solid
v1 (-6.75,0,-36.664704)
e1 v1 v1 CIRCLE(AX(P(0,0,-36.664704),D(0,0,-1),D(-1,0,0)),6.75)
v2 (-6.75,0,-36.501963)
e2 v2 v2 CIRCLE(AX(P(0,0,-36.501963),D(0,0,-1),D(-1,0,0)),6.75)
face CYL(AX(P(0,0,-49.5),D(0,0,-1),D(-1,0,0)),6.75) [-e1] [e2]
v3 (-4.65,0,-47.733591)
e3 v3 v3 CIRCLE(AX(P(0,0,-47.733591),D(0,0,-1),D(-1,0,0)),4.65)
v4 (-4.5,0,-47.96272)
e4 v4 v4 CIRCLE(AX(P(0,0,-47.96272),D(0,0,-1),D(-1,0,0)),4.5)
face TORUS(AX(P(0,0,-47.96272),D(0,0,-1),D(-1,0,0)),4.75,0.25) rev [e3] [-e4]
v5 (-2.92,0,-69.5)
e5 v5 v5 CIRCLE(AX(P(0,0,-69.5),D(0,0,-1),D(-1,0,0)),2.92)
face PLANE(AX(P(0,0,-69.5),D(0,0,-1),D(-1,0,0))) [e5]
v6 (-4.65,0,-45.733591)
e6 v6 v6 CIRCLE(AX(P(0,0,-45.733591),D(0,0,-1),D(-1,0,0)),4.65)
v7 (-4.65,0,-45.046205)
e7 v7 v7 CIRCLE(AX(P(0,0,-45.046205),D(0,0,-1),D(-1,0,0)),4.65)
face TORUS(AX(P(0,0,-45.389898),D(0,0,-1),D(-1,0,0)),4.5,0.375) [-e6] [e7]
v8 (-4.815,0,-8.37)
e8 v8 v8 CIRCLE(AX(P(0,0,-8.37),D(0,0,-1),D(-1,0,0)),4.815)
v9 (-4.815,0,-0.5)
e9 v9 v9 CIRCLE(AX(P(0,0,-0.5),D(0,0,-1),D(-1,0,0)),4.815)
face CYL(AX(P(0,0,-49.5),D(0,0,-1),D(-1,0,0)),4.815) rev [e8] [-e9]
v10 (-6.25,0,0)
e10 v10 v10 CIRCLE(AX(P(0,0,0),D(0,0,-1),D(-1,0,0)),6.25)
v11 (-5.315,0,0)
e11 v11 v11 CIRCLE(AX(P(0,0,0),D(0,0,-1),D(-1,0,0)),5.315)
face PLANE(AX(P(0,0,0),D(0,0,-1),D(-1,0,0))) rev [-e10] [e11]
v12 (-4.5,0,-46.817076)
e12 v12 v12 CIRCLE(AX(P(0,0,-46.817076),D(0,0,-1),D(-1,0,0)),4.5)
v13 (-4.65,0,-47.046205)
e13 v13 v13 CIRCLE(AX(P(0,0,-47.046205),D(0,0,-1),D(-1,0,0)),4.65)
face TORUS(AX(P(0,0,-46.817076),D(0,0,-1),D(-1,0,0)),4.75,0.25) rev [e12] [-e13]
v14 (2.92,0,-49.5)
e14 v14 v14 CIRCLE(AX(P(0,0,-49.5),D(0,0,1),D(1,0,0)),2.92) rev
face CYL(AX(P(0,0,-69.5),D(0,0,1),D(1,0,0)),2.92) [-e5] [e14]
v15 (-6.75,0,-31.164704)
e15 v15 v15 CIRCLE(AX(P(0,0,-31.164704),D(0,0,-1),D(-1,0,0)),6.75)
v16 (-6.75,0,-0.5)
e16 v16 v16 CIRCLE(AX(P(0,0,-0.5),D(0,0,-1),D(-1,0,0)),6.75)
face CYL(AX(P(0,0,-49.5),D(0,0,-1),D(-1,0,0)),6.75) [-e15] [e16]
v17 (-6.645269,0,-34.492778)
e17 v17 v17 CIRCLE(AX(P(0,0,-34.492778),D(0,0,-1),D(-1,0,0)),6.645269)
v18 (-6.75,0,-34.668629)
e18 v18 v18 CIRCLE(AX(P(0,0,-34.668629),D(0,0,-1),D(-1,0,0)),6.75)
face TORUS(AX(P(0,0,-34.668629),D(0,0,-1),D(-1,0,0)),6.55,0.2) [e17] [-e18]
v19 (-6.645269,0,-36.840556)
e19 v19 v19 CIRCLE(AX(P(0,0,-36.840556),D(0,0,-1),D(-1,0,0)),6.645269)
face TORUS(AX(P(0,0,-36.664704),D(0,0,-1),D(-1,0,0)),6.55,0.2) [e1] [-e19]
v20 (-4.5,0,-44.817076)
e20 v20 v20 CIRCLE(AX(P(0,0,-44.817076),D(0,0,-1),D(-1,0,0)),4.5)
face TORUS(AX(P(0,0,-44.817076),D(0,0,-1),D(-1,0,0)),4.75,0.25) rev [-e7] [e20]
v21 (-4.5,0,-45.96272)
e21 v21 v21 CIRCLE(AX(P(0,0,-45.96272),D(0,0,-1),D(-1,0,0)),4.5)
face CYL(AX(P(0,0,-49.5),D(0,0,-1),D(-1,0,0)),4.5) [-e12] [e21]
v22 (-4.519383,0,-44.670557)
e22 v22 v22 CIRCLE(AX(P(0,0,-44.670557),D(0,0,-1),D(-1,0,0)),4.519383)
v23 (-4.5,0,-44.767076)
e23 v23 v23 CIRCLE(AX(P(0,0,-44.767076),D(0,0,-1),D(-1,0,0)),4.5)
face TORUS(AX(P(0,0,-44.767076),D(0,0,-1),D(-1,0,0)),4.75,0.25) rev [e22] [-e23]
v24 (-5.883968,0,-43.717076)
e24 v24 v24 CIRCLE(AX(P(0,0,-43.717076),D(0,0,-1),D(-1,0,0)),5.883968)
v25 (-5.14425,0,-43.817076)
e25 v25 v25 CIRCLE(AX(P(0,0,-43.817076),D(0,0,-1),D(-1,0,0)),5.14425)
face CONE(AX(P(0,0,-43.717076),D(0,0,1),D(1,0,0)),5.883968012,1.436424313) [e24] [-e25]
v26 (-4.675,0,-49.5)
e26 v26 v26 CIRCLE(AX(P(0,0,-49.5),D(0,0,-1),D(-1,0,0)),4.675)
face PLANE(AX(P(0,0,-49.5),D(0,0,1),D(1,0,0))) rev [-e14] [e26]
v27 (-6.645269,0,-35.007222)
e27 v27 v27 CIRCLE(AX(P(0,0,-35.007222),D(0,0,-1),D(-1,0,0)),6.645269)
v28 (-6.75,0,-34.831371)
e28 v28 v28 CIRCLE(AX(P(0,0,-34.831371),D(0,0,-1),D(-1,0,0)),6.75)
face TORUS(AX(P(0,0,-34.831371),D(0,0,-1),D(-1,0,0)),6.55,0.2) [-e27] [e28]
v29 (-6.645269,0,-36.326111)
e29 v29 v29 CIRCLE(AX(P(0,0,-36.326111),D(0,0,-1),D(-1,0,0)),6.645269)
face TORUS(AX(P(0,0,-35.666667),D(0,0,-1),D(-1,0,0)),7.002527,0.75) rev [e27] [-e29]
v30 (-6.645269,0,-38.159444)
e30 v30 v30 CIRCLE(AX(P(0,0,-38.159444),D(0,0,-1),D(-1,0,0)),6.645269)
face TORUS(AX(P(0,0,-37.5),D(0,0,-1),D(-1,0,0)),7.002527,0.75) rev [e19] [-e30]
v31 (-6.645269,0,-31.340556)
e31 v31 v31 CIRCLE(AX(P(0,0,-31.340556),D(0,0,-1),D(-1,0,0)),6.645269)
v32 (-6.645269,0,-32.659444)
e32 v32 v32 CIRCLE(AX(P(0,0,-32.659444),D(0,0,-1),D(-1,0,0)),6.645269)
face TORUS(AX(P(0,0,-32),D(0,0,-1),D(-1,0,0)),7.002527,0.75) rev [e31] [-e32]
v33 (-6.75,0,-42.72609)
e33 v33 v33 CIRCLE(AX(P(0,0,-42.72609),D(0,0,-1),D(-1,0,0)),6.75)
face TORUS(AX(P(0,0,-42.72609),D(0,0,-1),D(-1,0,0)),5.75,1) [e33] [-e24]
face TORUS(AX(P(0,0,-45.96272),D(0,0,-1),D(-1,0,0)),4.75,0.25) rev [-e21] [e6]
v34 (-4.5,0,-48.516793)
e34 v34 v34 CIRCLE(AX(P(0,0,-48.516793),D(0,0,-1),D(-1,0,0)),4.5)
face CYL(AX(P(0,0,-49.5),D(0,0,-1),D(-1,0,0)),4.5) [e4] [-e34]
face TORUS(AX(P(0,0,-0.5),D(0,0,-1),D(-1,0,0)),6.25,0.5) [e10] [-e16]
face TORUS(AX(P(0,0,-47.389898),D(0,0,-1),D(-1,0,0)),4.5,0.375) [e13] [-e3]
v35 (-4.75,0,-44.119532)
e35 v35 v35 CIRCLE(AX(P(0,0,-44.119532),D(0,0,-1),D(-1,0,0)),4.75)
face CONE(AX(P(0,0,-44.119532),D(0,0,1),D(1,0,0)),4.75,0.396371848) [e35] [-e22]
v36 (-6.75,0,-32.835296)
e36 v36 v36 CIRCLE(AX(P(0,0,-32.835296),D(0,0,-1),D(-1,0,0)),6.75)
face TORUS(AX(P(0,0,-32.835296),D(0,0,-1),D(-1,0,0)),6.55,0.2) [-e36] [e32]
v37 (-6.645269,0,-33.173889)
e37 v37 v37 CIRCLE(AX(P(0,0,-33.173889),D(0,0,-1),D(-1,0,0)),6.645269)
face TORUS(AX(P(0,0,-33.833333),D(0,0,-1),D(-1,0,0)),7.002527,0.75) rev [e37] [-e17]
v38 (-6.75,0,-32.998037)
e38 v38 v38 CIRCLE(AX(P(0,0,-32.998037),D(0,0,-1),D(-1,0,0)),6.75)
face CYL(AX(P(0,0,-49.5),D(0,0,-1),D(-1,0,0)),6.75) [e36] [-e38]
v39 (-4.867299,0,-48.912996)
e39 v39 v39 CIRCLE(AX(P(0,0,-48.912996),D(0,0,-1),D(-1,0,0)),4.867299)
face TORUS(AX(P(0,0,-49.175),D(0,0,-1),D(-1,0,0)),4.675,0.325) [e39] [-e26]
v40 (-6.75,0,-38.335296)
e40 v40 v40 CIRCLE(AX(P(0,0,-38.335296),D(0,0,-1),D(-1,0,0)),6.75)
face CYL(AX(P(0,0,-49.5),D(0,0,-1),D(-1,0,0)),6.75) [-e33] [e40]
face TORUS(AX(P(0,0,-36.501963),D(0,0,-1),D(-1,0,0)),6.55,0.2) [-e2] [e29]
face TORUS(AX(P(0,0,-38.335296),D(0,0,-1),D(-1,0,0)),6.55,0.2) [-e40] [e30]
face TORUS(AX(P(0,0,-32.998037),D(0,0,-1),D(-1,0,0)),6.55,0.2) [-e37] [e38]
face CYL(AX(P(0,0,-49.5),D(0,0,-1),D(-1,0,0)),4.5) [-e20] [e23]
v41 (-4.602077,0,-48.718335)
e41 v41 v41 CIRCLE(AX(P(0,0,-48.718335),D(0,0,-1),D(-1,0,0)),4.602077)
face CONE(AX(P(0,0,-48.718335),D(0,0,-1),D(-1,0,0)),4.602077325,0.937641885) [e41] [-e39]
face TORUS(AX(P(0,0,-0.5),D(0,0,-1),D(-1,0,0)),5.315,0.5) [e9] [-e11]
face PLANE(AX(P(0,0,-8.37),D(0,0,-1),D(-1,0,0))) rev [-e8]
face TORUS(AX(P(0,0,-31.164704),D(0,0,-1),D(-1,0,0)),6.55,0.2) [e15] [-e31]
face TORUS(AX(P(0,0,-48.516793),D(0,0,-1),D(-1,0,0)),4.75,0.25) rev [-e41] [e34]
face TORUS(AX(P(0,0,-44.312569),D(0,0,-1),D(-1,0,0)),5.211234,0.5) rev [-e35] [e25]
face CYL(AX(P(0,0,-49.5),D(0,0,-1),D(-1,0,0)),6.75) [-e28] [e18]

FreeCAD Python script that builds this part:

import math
import FreeCAD as App
import Part
import Sketcher
from FreeCAD import Vector

doc = App.newDocument("Part")
body = doc.addObject("PartDesign::Body", "Body")

sketch1 = body.newObject("Sketcher::SketchObject", "Sketch")
sketch1.AttachmentSupport = (doc.getObject("YZ_Plane"), [""])
sketch1.MapMode = "FlatFace"
sketch1.addGeometry(Part.LineSegment(Vector(6.25, 0, 0), Vector(5.32, 0, 0)), False)
sketch1.addGeometry(Part.ArcOfCircle(Part.Circle(Vector(5.31, -0.5, 0), Vector(0, 0, 1), 0.5), math.radians(90), math.radians(180)), False)
sketch1.addGeometry(Part.LineSegment(Vector(4.82, -0.5, 0), Vector(4.82, -8.37, 0)), False)
sketch1.addGeometry(Part.LineSegment(Vector(4.82, -8.37, 0), Vector(0, -8.37, 0)), False)
sketch1.addGeometry(Part.LineSegment(Vector(0, -8.37, 0), Vector(0, -49.5, 0)), False)
sketch1.addGeometry(Part.LineSegment(Vector(0, -49.5, 0), Vector(4.67, -49.5, 0)), False)
sketch1.addGeometry(Part.ArcOfCircle(Part.Circle(Vector(4.67, -49.17, 0), Vector(0, 0, 1), 0.33), math.radians(-90), math.radians(54)), False)
sketch1.addGeometry(Part.LineSegment(Vector(4.87, -48.91, 0), Vector(4.6, -48.72, 0)), False)
sketch1.addGeometry(Part.ArcOfCircle(Part.Circle(Vector(4.75, -48.52, 0), Vector(0, 0, 1), 0.25), math.radians(180), math.radians(234)), False)
sketch1.addGeometry(Part.LineSegment(Vector(4.5, -48.52, 0), Vector(4.5, -47.96, 0)), False)
sketch1.addGeometry(Part.ArcOfCircle(Part.Circle(Vector(4.75, -47.96, 0), Vector(0, 0, 1), 0.25), math.radians(114), math.radians(180)), False)
sketch1.addGeometry(Part.ArcOfCircle(Part.Circle(Vector(4.5, -47.39, 0), Vector(0, 0, 1), 0.38), math.radians(-66), math.radians(66)), False)
sketch1.addGeometry(Part.ArcOfCircle(Part.Circle(Vector(4.75, -46.82, 0), Vector(0, 0, 1), 0.25), math.radians(180), math.radians(246)), False)
sketch1.addGeometry(Part.LineSegment(Vector(4.5, -46.82, 0), Vector(4.5, -45.96, 0)), False)
sketch1.addGeometry(Part.ArcOfCircle(Part.Circle(Vector(4.75, -45.96, 0), Vector(0, 0, 1), 0.25), math.radians(114), math.radians(180)), False)
sketch1.addGeometry(Part.ArcOfCircle(Part.Circle(Vector(4.5, -45.39, 0), Vector(0, 0, 1), 0.38), math.radians(-66), math.radians(66)), False)
sketch1.addGeometry(Part.ArcOfCircle(Part.Circle(Vector(4.75, -44.82, 0), Vector(0, 0, 1), 0.25), math.radians(180), math.radians(246)), False)
sketch1.addGeometry(Part.LineSegment(Vector(4.5, -44.82, 0), Vector(4.5, -44.77, 0)), False)
sketch1.addGeometry(Part.ArcOfCircle(Part.Circle(Vector(4.75, -44.77, 0), Vector(0, 0, 1), 0.25), math.radians(157), math.radians(180)), False)
sketch1.addGeometry(Part.LineSegment(Vector(4.52, -44.67, 0), Vector(4.75, -44.12, 0)), False)
sketch1.addGeometry(Part.ArcOfCircle(Part.Circle(Vector(5.21, -44.31, 0), Vector(0, 0, 1), 0.5), math.radians(98), math.radians(157)), False)
sketch1.addGeometry(Part.LineSegment(Vector(5.14, -43.82, 0), Vector(5.88, -43.72, 0)), False)
sketch1.addGeometry(Part.ArcOfCircle(Part.Circle(Vector(5.75, -42.73, 0), Vector(0, 0, 1), 1), math.radians(-82), math.radians(0)), False)
sketch1.addGeometry(Part.LineSegment(Vector(6.75, -42.73, 0), Vector(6.75, -38.34, 0)), False)
sketch1.addGeometry(Part.ArcOfCircle(Part.Circle(Vector(6.55, -38.34, 0), Vector(0, 0, 1), 0.2), math.radians(0), math.radians(62)), False)
sketch1.addGeometry(Part.ArcOfCircle(Part.Circle(Vector(7, -37.5, 0), Vector(0, 0, 1), 0.75), math.radians(118), math.radians(242)), False)
sketch1.addGeometry(Part.ArcOfCircle(Part.Circle(Vector(6.55, -36.66, 0), Vector(0, 0, 1), 0.2), math.radians(-62), math.radians(0)), False)
sketch1.addGeometry(Part.LineSegment(Vector(6.75, -36.66, 0), Vector(6.75, -36.5, 0)), False)
sketch1.addGeometry(Part.ArcOfCircle(Part.Circle(Vector(6.55, -36.5, 0), Vector(0, 0, 1), 0.2), math.radians(0), math.radians(62)), False)
sketch1.addGeometry(Part.ArcOfCircle(Part.Circle(Vector(7, -35.67, 0), Vector(0, 0, 1), 0.75), math.radians(118), math.radians(242)), False)
sketch1.addGeometry(Part.ArcOfCircle(Part.Circle(Vector(6.55, -34.83, 0), Vector(0, 0, 1), 0.2), math.radians(-62), math.radians(0)), False)
sketch1.addGeometry(Part.LineSegment(Vector(6.75, -34.83, 0), Vector(6.75, -34.67, 0)), False)
sketch1.addGeometry(Part.ArcOfCircle(Part.Circle(Vector(6.55, -34.67, 0), Vector(0, 0, 1), 0.2), math.radians(0), math.radians(62)), False)
sketch1.addGeometry(Part.ArcOfCircle(Part.Circle(Vector(7, -33.83, 0), Vector(0, 0, 1), 0.75), math.radians(118), math.radians(242)), False)
sketch1.addGeometry(Part.ArcOfCircle(Part.Circle(Vector(6.55, -33, 0), Vector(0, 0, 1), 0.2), math.radians(-62), math.radians(0)), False)
sketch1.addGeometry(Part.LineSegment(Vector(6.75, -33, 0), Vector(6.75, -32.84, 0)), False)
sketch1.addGeometry(Part.ArcOfCircle(Part.Circle(Vector(6.55, -32.84, 0), Vector(0, 0, 1), 0.2), math.radians(0), math.radians(62)), False)
sketch1.addGeometry(Part.ArcOfCircle(Part.Circle(Vector(7, -32, 0), Vector(0, 0, 1), 0.75), math.radians(118), math.radians(242)), False)
sketch1.addGeometry(Part.ArcOfCircle(Part.Circle(Vector(6.55, -31.16, 0), Vector(0, 0, 1), 0.2), math.radians(-62), math.radians(0)), False)
sketch1.addGeometry(Part.LineSegment(Vector(6.75, -31.16, 0), Vector(6.75, -0.5, 0)), False)
sketch1.addGeometry(Part.ArcOfCircle(Part.Circle(Vector(6.25, -0.5, 0), Vector(0, 0, 1), 0.5), math.radians(0), math.radians(90)), False)
sketch1.addConstraint(Sketcher.Constraint("Tangent", 0, 2, 1, 1))
sketch1.addConstraint(Sketcher.Constraint("Tangent", 1, 2, 2, 1))
sketch1.addConstraint(Sketcher.Constraint("Coincident", 2, 2, 3, 1))
sketch1.addConstraint(Sketcher.Constraint("Coincident", 3, 2, 4, 1))
sketch1.addConstraint(Sketcher.Constraint("Coincident", 4, 2, 5, 1))
sketch1.addConstraint(Sketcher.Constraint("Tangent", 5, 2, 6, 1))
sketch1.addConstraint(Sketcher.Constraint("Tangent", 6, 2, 7, 1))
sketch1.addConstraint(Sketcher.Constraint("Tangent", 7, 2, 8, 2))
sketch1.addConstraint(Sketcher.Constraint("Tangent", 8, 1, 9, 1))
sketch1.addConstraint(Sketcher.Constraint("Tangent", 9, 2, 10, 2))
sketch1.addConstraint(Sketcher.Constraint("Tangent", 10, 1, 11, 1))
sketch1.addConstraint(Sketcher.Constraint("Tangent", 11, 2, 12, 2))
sketch1.addConstraint(Sketcher.Constraint("Tangent", 12, 1, 13, 1))
sketch1.addConstraint(Sketcher.Constraint("Tangent", 13, 2, 14, 2))
sketch1.addConstraint(Sketcher.Constraint("Tangent", 14, 1, 15, 1))
sketch1.addConstraint(Sketcher.Constraint("Tangent", 15, 2, 16, 2))
sketch1.addConstraint(Sketcher.Constraint("Tangent", 16, 1, 17, 1))
sketch1.addConstraint(Sketcher.Constraint("Tangent", 17, 2, 18, 2))
sketch1.addConstraint(Sketcher.Constraint("Tangent", 18, 1, 19, 1))
sketch1.addConstraint(Sketcher.Constraint("Tangent", 19, 2, 20, 2))
sketch1.addConstraint(Sketcher.Constraint("Tangent", 20, 1, 21, 1))
sketch1.addConstraint(Sketcher.Constraint("Tangent", 21, 2, 22, 1))
sketch1.addConstraint(Sketcher.Constraint("Tangent", 22, 2, 23, 1))
sketch1.addConstraint(Sketcher.Constraint("Tangent", 23, 2, 24, 1))
sketch1.addConstraint(Sketcher.Constraint("Tangent", 24, 2, 25, 2))
sketch1.addConstraint(Sketcher.Constraint("Tangent", 25, 1, 26, 1))
sketch1.addConstraint(Sketcher.Constraint("Tangent", 26, 2, 27, 1))
sketch1.addConstraint(Sketcher.Constraint("Tangent", 27, 2, 28, 1))
sketch1.addConstraint(Sketcher.Constraint("Tangent", 28, 2, 29, 2))
sketch1.addConstraint(Sketcher.Constraint("Tangent", 29, 1, 30, 1))
sketch1.addConstraint(Sketcher.Constraint("Tangent", 30, 2, 31, 1))
sketch1.addConstraint(Sketcher.Constraint("Tangent", 31, 2, 32, 1))
sketch1.addConstraint(Sketcher.Constraint("Tangent", 32, 2, 33, 2))
sketch1.addConstraint(Sketcher.Constraint("Tangent", 33, 1, 34, 1))
sketch1.addConstraint(Sketcher.Constraint("Tangent", 34, 2, 35, 1))
sketch1.addConstraint(Sketcher.Constraint("Tangent", 35, 2, 36, 1))
sketch1.addConstraint(Sketcher.Constraint("Tangent", 36, 2, 37, 2))
sketch1.addConstraint(Sketcher.Constraint("Tangent", 37, 1, 38, 1))
sketch1.addConstraint(Sketcher.Constraint("Tangent", 38, 2, 39, 1))
sketch1.addConstraint(Sketcher.Constraint("Tangent", 39, 2, 40, 1))
sketch1.addConstraint(Sketcher.Constraint("Tangent", 40, 2, 0, 1))
sketch1.addConstraint(Sketcher.Constraint("Horizontal", 0))
sketch1.addConstraint(Sketcher.Constraint("Vertical", 2))
sketch1.addConstraint(Sketcher.Constraint("Horizontal", 3))
sketch1.addConstraint(Sketcher.Constraint("Vertical", 4))
sketch1.addConstraint(Sketcher.Constraint("Horizontal", 5))
sketch1.addConstraint(Sketcher.Constraint("Vertical", 9))
sketch1.addConstraint(Sketcher.Constraint("Vertical", 13))
sketch1.addConstraint(Sketcher.Constraint("Vertical", 17))
sketch1.addConstraint(Sketcher.Constraint("Vertical", 23))
sketch1.addConstraint(Sketcher.Constraint("Vertical", 27))
sketch1.addConstraint(Sketcher.Constraint("Vertical", 31))
sketch1.addConstraint(Sketcher.Constraint("Vertical", 35))
sketch1.addConstraint(Sketcher.Constraint("Vertical", 39))
sketch1.addConstraint(Sketcher.Constraint("Equal", 8, 10))
sketch1.addConstraint(Sketcher.Constraint("Equal", 10, 12))
sketch1.addConstraint(Sketcher.Constraint("Equal", 12, 14))
sketch1.addConstraint(Sketcher.Constraint("Equal", 11, 15))
sketch1.addConstraint(Sketcher.Constraint("Equal", 14, 16))
sketch1.addConstraint(Sketcher.Constraint("Equal", 16, 18))
sketch1.addConstraint(Sketcher.Constraint("Equal", 1, 20))
sketch1.addConstraint(Sketcher.Constraint("Equal", 24, 26))
sketch1.addConstraint(Sketcher.Constraint("Equal", 26, 28))
sketch1.addConstraint(Sketcher.Constraint("Equal", 25, 29))
sketch1.addConstraint(Sketcher.Constraint("Equal", 28, 30))
sketch1.addConstraint(Sketcher.Constraint("Equal", 30, 32))
sketch1.addConstraint(Sketcher.Constraint("Equal", 29, 33))
sketch1.addConstraint(Sketcher.Constraint("Equal", 32, 34))
sketch1.addConstraint(Sketcher.Constraint("Equal", 34, 36))
sketch1.addConstraint(Sketcher.Constraint("Equal", 33, 37))
sketch1.addConstraint(Sketcher.Constraint("Equal", 36, 38))
sketch1.addConstraint(Sketcher.Constraint("Equal", 20, 40))
sketch1.addConstraint(Sketcher.Constraint("PointOnObject", 0, 2, -1))
sketch1.addConstraint(Sketcher.Constraint("PointOnObject", 3, 2, -2))
sketch1.addConstraint(Sketcher.Constraint("Vertical", 10, 3, 12, 3))
sketch1.addConstraint(Sketcher.Constraint("Vertical", 11, 3, 15, 3))
sketch1.addConstraint(Sketcher.Constraint("Vertical", 14, 3, 16, 3))
sketch1.addConstraint(Sketcher.Constraint("Vertical", 24, 3, 26, 3))
sketch1.addConstraint(Sketcher.Constraint("Vertical", 25, 3, 29, 3))
sketch1.addConstraint(Sketcher.Constraint("Vertical", 28, 3, 30, 3))
sketch1.addConstraint(Sketcher.Constraint("Vertical", 29, 3, 33, 3))
sketch1.addConstraint(Sketcher.Constraint("Vertical", 32, 3, 34, 3))
sketch1.addConstraint(Sketcher.Constraint("Vertical", 33, 3, 37, 3))
sketch1.addConstraint(Sketcher.Constraint("Vertical", 36, 3, 38, 3))
sketch1.addConstraint(Sketcher.Constraint("Vertical", 15, 3, 8, 1))
sketch1.addConstraint(Sketcher.Constraint("Vertical", 18, 3, 19, 2))
sketch1.addConstraint(Sketcher.Constraint("Equal", 27, 31))
sketch1.addConstraint(Sketcher.Constraint("Equal", 31, 35))
sketch1.addConstraint(Sketcher.Constraint("Radius", 22, 1.0))
sketch1.addConstraint(Sketcher.Constraint("Radius", 1, 0.5))
sketch1.addConstraint(Sketcher.Constraint("Radius", 24, 0.2))
sketch1.addConstraint(Sketcher.Constraint("Radius", 8, 0.25))
sketch1.addConstraint(Sketcher.Constraint("Radius", 25, 0.75))
sketch1.addConstraint(Sketcher.Constraint("DistanceY", 37, 3, -1, 1, 32.0))
sketch1.addConstraint(Sketcher.Constraint("Radius", 6, 0.325))
sketch1.addConstraint(Sketcher.Constraint("Radius", 11, 0.375))
sketch1.addConstraint(Sketcher.Constraint("DistanceY", 2, 2, 2, 1, 7.87))
sketch1.addConstraint(Sketcher.Constraint("DistanceY", 4, 2, 4, 1, 41.13))
sketch1.addConstraint(Sketcher.Constraint("DistanceY", 17, 1, 17, 2, 0.05))
sketch1.addConstraint(Sketcher.Constraint("DistanceX", -1, 1, 11, 3, 4.5))
sketch1.addConstraint(Sketcher.Constraint("DistanceY", 25, 3, -1, 1, 37.5))
sketch1.addConstraint(Sketcher.Constraint("DistanceX", 0, 2, 0, 1, 0.935))
sketch1.addConstraint(Sketcher.Constraint("DistanceX", 3, 2, 3, 1, 4.815))
sketch1.addConstraint(Sketcher.Constraint("DistanceX", 5, 1, 5, 2, 4.675))
sketch1.addConstraint(Sketcher.Constraint("DistanceY", 27, 1, 27, 2, 0.162741))
sketch1.addConstraint(Sketcher.Constraint("DistanceX", -1, 1, 6, 2, 4.867299))
sketch1.addConstraint(Sketcher.Constraint("Distance", 19, 0.597339))
sketch1.addConstraint(Sketcher.Constraint("DistanceY", 9, 1, 9, 2, 0.554073))
sketch1.addConstraint(Sketcher.Constraint("DistanceY", 13, 1, 13, 2, 0.854356))
sketch1.addConstraint(Sketcher.Constraint("DistanceY", 23, 1, 23, 2, 4.390794))
revolution = body.newObject("PartDesign::Revolution", "Revolution")
revolution.Profile = sketch1
revolution.ReferenceAxis = (sketch1, ["V_Axis"])
revolution.Angle = 360

sketch2 = body.newObject("Sketcher::SketchObject", "Sketch001")
sketch2.AttachmentSupport = (doc.getObject("XY_Plane"), [""])
sketch2.MapMode = "FlatFace"
sketch2.AttachmentOffset = App.Placement(Vector(0, 0, -49.5), App.Rotation())
sketch2.addGeometry(Part.Circle(Vector(0, 0, 0), Vector(0, 0, 1), 2.9), False)
sketch2.addConstraint(Sketcher.Constraint("Coincident", 0, 3, -1, 1))
sketch2.addConstraint(Sketcher.Constraint("Diameter", 0, 5.84))
pad1 = body.newObject("PartDesign::Pad", "Pad")
pad1.Profile = sketch2
pad1.Length = 20
pad1.Reversed = True

doc.recompute()
